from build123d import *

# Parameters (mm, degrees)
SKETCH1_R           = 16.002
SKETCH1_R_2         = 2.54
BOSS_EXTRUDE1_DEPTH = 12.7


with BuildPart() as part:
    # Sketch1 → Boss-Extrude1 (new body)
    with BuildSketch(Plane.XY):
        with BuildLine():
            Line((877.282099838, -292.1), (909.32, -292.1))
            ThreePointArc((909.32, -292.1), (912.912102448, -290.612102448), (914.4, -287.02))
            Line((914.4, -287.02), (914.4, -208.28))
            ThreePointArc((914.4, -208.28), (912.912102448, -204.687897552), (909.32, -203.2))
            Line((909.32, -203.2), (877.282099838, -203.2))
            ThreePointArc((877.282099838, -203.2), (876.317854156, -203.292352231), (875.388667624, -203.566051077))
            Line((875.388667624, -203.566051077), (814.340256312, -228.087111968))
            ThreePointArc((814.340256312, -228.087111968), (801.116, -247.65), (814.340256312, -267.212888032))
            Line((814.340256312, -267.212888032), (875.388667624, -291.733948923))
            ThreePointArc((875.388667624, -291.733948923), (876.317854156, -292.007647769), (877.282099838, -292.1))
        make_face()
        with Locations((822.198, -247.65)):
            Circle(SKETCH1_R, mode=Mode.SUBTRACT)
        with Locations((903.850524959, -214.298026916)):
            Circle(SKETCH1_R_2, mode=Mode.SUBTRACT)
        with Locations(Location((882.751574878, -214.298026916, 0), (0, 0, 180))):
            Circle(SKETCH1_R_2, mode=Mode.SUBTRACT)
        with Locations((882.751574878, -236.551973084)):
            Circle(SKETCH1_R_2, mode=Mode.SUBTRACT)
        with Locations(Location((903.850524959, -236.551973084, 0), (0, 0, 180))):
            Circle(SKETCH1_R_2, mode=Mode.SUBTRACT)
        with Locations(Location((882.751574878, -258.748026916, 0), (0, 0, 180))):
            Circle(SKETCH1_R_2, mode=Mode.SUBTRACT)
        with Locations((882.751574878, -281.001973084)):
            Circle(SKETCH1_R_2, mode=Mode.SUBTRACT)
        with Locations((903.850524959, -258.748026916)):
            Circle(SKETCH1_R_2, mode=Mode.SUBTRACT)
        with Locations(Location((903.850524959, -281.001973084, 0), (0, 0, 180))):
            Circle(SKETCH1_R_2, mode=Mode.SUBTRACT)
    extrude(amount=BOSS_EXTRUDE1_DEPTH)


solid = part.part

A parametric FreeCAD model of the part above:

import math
import FreeCAD as App
import Part
import Sketcher

V = App.Vector
Q = App.Units.Quantity

doc = App.newDocument("Part")
body = doc.addObject("PartDesign::Body", "Body")

sketch1 = body.newObject("Sketcher::SketchObject", "Sketch")
sketch1.AttachmentSupport = (doc.getObject("XY_Plane"), [""])
sketch1.MapMode = "FlatFace"
sketch1.addGeometry(Part.LineSegment(V(877.3, -292.1, 0), V(909.3, -292.1, 0)), False)
sketch1.addGeometry(Part.ArcOfCircle(Part.Circle(V(909.3, -287, 0), V(0, 0, 1), 5.1), math.radians(-90), math.radians(0)), False)
sketch1.addGeometry(Part.LineSegment(V(914.4, -287, 0), V(914.4, -208.3, 0)), False)
sketch1.addGeometry(Part.ArcOfCircle(Part.Circle(V(909.3, -208.3, 0), V(0, 0, 1), 5.1), math.radians(0), math.radians(90)), False)
sketch1.addGeometry(Part.LineSegment(V(909.3, -203.2, 0), V(877.3, -203.2, 0)), False)
sketch1.addGeometry(Part.ArcOfCircle(Part.Circle(V(877.3, -208.3, 0), V(0, 0, 1), 5.1), math.radians(90), math.radians(112)), False)
sketch1.addGeometry(Part.LineSegment(V(875.4, -203.6, 0), V(814.3, -228.1, 0)), False)
sketch1.addGeometry(Part.ArcOfCircle(Part.Circle(V(822.2, -247.7, 0), V(0, 0, 1), 21.1), math.radians(112), math.radians(248)), False)
sketch1.addGeometry(Part.LineSegment(V(814.3, -267.2, 0), V(875.4, -291.7, 0)), False)
sketch1.addGeometry(Part.ArcOfCircle(Part.Circle(V(877.3, -287, 0), V(0, 0, 1), 5.1), math.radians(-112), math.radians(-90)), False)
sketch1.addGeometry(Part.Circle(V(822.2, -247.7, 0), V(0, 0, 1), 16), False)
sketch1.addGeometry(Part.Circle(V(882.8, -281, 0), V(0, 0, 1), 2.5), False)
sketch1.addGeometry(Part.Circle(V(903.9, -281, 0), V(0, 0, 1), 2.5), False)
sketch1.addGeometry(Part.Circle(V(882.8, -258.7, 0), V(0, 0, 1), 2.5), False)
sketch1.addGeometry(Part.Circle(V(903.9, -258.7, 0), V(0, 0, 1), 2.5), False)
sketch1.addGeometry(Part.Circle(V(882.8, -236.6, 0), V(0, 0, 1), 2.5), False)
sketch1.addGeometry(Part.Circle(V(903.9, -236.6, 0), V(0, 0, 1), 2.5), False)
sketch1.addGeometry(Part.Circle(V(882.8, -214.3, 0), V(0, 0, 1), 2.5), False)
sketch1.addGeometry(Part.Circle(V(903.9, -214.3, 0), V(0, 0, 1), 2.5), False)
sketch1.addConstraint(Sketcher.Constraint("Tangent", 0, 2, 1, 1))
sketch1.addConstraint(Sketcher.Constraint("Tangent", 1, 2, 2, 1))
sketch1.addConstraint(Sketcher.Constraint("Tangent", 2, 2, 3, 1))
sketch1.addConstraint(Sketcher.Constraint("Tangent", 3, 2, 4, 1))
sketch1.addConstraint(Sketcher.Constraint("Tangent", 4, 2, 5, 1))
sketch1.addConstraint(Sketcher.Constraint("Tangent", 5, 2, 6, 1))
sketch1.addConstraint(Sketcher.Constraint("Tangent", 6, 2, 7, 1))
sketch1.addConstraint(Sketcher.Constraint("Tangent", 7, 2, 8, 1))
sketch1.addConstraint(Sketcher.Constraint("Tangent", 8, 2, 9, 1))
sketch1.addConstraint(Sketcher.Constraint("Tangent", 9, 2, 0, 1))
sketch1.addConstraint(Sketcher.Constraint("Horizontal", 0))
sketch1.addConstraint(Sketcher.Constraint("Vertical", 2))
sketch1.addConstraint(Sketcher.Constraint("Horizontal", 4))
sketch1.addConstraint(Sketcher.Constraint("Coincident", 10, 3, 7, 3))
sketch1.addConstraint(Sketcher.Constraint("Equal", 1, 3))
sketch1.addConstraint(Sketcher.Constraint("Equal", 3, 5))
sketch1.addConstraint(Sketcher.Constraint("Equal", 5, 9))
sketch1.addConstraint(Sketcher.Constraint("Equal", 11, 12))
sketch1.addConstraint(Sketcher.Constraint("Equal", 12, 13))
sketch1.addConstraint(Sketcher.Constraint("Equal", 13, 14))
sketch1.addConstraint(Sketcher.Constraint("Equal", 14, 15))
sketch1.addConstraint(Sketcher.Constraint("Equal", 15, 16))
sketch1.addConstraint(Sketcher.Constraint("Equal", 16, 17))
sketch1.addConstraint(Sketcher.Constraint("Equal", 17, 18))
sketch1.addConstraint(Sketcher.Constraint("Horizontal", 11, 3, 12, 3))
sketch1.addConstraint(Sketcher.Constraint("Horizontal", 13, 3, 14, 3))
sketch1.addConstraint(Sketcher.Constraint("Horizontal", 15, 3, 16, 3))
sketch1.addConstraint(Sketcher.Constraint("Horizontal", 17, 3, 18, 3))
sketch1.addConstraint(Sketcher.Constraint("Vertical", 5, 3, 9, 3))
sketch1.addConstraint(Sketcher.Constraint("Vertical", 11, 3, 13, 3))
sketch1.addConstraint(Sketcher.Constraint("Vertical", 12, 3, 14, 3))
sketch1.addConstraint(Sketcher.Constraint("Vertical", 13, 3, 15, 3))
sketch1.addConstraint(Sketcher.Constraint("Vertical", 14, 3, 16, 3))
sketch1.addConstraint(Sketcher.Constraint("Vertical", 15, 3, 17, 3))
sketch1.addConstraint(Sketcher.Constraint("Vertical", 16, 3, 18, 3))
sketch1.addConstraint(Sketcher.Constraint("Vertical", 6, 2, 7, 2))
sketch1.addConstraint(Sketcher.Constraint("Diameter", 11, Q("0.2 in")))
sketch1.addConstraint(Sketcher.Constraint("Radius", 1, Q("0.2 in")))
sketch1.addConstraint(Sketcher.Constraint("Diameter", 10, Q("1.26 in")))
sketch1.addConstraint(Sketcher.Constraint("Radius", 7, Q("0.83 in")))
sketch1.addConstraint(Sketcher.Constraint("DistanceY", 2, 1, 2, 2, Q("3.1 in")))
sketch1.addConstraint(Sketcher.Constraint("DistanceX", -1, 1, 1, 2, Q("36 in")))
sketch1.addConstraint(Sketcher.Constraint("DistanceY", 3, 2, -1, 1, Q("8 in")))
sketch1.addConstraint(Sketcher.Constraint("DistanceX", -1, 1, 7, 3, Q("32.37 in")))
sketch1.addConstraint(Sketcher.Constraint("DistanceY", 11, 3, 15, 3, Q("1.75 in")))
sketch1.addConstraint(Sketcher.Constraint("DistanceY", 13, 3, 17, 3, Q("1.75 in")))
sketch1.addConstraint(Sketcher.Constraint("DistanceX", 0, 1, 0, 2, 32.0379))
sketch1.addConstraint(Sketcher.Constraint("DistanceX", 11, 3, 12, 3, 21.09895))
sketch1.addConstraint(Sketcher.Constraint("DistanceX", 7, 2, 13, 3, 68.411319))
sketch1.addConstraint(Sketcher.Constraint("DistanceY", 7, 2, 13, 3, 8.464861))
sketch1.addConstraint(Sketcher.Constraint("DistanceY", 11, 3, -1, 1, 281.001973))
pad1 = body.newObject("PartDesign::Pad", "Pad")
pad1.Profile = sketch1
pad1.Length = Q("0.5 in")

doc.recompute()
